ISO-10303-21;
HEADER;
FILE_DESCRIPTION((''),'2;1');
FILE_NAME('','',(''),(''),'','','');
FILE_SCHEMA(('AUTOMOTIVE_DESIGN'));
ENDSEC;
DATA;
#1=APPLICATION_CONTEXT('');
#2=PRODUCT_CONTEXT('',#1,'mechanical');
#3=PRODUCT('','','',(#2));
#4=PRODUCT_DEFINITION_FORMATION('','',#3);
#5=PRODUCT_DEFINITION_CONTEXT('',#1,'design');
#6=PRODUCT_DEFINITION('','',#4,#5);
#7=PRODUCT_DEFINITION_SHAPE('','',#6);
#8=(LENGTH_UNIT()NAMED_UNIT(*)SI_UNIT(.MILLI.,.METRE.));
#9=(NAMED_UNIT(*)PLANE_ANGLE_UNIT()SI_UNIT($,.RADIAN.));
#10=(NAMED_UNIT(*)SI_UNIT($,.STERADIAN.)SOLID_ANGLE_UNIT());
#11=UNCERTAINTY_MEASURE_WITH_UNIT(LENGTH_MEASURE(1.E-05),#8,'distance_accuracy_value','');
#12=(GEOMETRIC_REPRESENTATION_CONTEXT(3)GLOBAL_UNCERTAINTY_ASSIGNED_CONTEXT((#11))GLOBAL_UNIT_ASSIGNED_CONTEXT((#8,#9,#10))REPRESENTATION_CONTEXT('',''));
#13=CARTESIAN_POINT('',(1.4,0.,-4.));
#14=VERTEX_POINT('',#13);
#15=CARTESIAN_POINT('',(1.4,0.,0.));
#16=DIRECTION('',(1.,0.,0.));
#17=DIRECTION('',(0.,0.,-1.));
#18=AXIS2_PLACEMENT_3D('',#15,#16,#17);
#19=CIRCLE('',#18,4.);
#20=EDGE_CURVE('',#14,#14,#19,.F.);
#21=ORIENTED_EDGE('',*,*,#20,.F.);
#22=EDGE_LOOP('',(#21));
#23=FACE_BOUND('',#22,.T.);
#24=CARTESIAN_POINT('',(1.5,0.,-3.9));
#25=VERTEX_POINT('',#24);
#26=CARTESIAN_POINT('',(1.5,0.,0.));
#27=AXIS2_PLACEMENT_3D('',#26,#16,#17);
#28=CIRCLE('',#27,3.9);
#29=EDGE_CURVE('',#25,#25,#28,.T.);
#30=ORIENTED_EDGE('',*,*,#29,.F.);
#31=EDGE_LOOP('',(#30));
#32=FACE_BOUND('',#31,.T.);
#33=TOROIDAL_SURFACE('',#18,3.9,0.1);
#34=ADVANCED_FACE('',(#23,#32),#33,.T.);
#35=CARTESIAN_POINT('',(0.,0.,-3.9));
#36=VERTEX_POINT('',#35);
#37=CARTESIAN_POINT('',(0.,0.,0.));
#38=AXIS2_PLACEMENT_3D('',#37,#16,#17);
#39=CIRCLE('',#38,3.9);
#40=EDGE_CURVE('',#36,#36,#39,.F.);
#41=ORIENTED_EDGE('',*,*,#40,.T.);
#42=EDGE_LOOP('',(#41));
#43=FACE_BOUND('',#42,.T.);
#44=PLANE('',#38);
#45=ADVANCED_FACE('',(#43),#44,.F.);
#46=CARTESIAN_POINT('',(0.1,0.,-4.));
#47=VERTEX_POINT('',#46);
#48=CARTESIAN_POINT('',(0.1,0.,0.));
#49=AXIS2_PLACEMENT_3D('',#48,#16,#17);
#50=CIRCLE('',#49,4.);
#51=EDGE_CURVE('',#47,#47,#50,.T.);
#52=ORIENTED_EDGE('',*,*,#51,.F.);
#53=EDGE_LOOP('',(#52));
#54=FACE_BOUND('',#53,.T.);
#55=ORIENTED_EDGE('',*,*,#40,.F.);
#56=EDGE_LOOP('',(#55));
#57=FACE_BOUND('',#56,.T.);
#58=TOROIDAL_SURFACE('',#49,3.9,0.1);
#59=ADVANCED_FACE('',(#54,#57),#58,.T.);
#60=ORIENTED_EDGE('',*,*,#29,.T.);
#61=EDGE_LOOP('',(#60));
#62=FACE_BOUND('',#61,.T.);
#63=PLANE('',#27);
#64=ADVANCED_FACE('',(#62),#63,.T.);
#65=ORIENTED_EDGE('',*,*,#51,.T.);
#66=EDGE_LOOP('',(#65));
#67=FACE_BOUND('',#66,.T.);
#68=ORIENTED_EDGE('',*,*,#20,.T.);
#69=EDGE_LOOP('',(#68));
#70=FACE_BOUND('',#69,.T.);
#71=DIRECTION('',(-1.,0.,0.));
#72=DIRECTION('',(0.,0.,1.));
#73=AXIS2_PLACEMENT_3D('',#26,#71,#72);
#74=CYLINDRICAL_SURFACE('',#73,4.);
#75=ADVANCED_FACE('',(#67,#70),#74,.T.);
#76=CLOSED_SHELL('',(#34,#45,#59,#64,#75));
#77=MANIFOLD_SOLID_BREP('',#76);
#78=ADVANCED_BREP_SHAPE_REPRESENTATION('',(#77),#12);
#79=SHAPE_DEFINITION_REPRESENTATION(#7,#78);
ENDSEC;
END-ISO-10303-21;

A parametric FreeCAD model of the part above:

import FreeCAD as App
import Part
import Sketcher
Q = App.Units.Quantity


def edges_at(feature, points):
    """Names of the edges that pass closest to the given points."""
    edges = feature.Shape.Edges
    near = lambda p: min(range(len(edges)), key=lambda i: edges[i].distToShape(Part.Vertex(*p))[0])
    return sorted({f"Edge{near(p) + 1}" for p in points})

doc = App.newDocument("Part")
body = doc.addObject("PartDesign::Body", "Body")

# Sketch on YZ plane
sketch1 = body.newObject("Sketcher::SketchObject", "Sketch")
sketch1.AttachmentSupport = (doc.getObject("YZ_Plane"), [""])
sketch1.MapMode = "FlatFace"
sketch1.addGeometry(Part.Circle(App.Vector(0, 0, 0), App.Vector(0, 0, 1), 4), False)
sketch1.addConstraint(Sketcher.Constraint("Coincident", 0, 3, -1, 1))
sketch1.addConstraint(Sketcher.Constraint("Diameter", 0, Q("8 mm")))
pad1 = body.newObject("PartDesign::Pad", "Pad")
pad1.Profile = sketch1
pad1.Length = 1.5
doc.recompute()

fillet = body.newObject("PartDesign::Fillet", "Fillet")
fillet.Base = (pad1, edges_at(pad1, [(0, -4, 0), (1.5, -4, 0)]))
fillet.Radius = 0.1

doc.recompute()
